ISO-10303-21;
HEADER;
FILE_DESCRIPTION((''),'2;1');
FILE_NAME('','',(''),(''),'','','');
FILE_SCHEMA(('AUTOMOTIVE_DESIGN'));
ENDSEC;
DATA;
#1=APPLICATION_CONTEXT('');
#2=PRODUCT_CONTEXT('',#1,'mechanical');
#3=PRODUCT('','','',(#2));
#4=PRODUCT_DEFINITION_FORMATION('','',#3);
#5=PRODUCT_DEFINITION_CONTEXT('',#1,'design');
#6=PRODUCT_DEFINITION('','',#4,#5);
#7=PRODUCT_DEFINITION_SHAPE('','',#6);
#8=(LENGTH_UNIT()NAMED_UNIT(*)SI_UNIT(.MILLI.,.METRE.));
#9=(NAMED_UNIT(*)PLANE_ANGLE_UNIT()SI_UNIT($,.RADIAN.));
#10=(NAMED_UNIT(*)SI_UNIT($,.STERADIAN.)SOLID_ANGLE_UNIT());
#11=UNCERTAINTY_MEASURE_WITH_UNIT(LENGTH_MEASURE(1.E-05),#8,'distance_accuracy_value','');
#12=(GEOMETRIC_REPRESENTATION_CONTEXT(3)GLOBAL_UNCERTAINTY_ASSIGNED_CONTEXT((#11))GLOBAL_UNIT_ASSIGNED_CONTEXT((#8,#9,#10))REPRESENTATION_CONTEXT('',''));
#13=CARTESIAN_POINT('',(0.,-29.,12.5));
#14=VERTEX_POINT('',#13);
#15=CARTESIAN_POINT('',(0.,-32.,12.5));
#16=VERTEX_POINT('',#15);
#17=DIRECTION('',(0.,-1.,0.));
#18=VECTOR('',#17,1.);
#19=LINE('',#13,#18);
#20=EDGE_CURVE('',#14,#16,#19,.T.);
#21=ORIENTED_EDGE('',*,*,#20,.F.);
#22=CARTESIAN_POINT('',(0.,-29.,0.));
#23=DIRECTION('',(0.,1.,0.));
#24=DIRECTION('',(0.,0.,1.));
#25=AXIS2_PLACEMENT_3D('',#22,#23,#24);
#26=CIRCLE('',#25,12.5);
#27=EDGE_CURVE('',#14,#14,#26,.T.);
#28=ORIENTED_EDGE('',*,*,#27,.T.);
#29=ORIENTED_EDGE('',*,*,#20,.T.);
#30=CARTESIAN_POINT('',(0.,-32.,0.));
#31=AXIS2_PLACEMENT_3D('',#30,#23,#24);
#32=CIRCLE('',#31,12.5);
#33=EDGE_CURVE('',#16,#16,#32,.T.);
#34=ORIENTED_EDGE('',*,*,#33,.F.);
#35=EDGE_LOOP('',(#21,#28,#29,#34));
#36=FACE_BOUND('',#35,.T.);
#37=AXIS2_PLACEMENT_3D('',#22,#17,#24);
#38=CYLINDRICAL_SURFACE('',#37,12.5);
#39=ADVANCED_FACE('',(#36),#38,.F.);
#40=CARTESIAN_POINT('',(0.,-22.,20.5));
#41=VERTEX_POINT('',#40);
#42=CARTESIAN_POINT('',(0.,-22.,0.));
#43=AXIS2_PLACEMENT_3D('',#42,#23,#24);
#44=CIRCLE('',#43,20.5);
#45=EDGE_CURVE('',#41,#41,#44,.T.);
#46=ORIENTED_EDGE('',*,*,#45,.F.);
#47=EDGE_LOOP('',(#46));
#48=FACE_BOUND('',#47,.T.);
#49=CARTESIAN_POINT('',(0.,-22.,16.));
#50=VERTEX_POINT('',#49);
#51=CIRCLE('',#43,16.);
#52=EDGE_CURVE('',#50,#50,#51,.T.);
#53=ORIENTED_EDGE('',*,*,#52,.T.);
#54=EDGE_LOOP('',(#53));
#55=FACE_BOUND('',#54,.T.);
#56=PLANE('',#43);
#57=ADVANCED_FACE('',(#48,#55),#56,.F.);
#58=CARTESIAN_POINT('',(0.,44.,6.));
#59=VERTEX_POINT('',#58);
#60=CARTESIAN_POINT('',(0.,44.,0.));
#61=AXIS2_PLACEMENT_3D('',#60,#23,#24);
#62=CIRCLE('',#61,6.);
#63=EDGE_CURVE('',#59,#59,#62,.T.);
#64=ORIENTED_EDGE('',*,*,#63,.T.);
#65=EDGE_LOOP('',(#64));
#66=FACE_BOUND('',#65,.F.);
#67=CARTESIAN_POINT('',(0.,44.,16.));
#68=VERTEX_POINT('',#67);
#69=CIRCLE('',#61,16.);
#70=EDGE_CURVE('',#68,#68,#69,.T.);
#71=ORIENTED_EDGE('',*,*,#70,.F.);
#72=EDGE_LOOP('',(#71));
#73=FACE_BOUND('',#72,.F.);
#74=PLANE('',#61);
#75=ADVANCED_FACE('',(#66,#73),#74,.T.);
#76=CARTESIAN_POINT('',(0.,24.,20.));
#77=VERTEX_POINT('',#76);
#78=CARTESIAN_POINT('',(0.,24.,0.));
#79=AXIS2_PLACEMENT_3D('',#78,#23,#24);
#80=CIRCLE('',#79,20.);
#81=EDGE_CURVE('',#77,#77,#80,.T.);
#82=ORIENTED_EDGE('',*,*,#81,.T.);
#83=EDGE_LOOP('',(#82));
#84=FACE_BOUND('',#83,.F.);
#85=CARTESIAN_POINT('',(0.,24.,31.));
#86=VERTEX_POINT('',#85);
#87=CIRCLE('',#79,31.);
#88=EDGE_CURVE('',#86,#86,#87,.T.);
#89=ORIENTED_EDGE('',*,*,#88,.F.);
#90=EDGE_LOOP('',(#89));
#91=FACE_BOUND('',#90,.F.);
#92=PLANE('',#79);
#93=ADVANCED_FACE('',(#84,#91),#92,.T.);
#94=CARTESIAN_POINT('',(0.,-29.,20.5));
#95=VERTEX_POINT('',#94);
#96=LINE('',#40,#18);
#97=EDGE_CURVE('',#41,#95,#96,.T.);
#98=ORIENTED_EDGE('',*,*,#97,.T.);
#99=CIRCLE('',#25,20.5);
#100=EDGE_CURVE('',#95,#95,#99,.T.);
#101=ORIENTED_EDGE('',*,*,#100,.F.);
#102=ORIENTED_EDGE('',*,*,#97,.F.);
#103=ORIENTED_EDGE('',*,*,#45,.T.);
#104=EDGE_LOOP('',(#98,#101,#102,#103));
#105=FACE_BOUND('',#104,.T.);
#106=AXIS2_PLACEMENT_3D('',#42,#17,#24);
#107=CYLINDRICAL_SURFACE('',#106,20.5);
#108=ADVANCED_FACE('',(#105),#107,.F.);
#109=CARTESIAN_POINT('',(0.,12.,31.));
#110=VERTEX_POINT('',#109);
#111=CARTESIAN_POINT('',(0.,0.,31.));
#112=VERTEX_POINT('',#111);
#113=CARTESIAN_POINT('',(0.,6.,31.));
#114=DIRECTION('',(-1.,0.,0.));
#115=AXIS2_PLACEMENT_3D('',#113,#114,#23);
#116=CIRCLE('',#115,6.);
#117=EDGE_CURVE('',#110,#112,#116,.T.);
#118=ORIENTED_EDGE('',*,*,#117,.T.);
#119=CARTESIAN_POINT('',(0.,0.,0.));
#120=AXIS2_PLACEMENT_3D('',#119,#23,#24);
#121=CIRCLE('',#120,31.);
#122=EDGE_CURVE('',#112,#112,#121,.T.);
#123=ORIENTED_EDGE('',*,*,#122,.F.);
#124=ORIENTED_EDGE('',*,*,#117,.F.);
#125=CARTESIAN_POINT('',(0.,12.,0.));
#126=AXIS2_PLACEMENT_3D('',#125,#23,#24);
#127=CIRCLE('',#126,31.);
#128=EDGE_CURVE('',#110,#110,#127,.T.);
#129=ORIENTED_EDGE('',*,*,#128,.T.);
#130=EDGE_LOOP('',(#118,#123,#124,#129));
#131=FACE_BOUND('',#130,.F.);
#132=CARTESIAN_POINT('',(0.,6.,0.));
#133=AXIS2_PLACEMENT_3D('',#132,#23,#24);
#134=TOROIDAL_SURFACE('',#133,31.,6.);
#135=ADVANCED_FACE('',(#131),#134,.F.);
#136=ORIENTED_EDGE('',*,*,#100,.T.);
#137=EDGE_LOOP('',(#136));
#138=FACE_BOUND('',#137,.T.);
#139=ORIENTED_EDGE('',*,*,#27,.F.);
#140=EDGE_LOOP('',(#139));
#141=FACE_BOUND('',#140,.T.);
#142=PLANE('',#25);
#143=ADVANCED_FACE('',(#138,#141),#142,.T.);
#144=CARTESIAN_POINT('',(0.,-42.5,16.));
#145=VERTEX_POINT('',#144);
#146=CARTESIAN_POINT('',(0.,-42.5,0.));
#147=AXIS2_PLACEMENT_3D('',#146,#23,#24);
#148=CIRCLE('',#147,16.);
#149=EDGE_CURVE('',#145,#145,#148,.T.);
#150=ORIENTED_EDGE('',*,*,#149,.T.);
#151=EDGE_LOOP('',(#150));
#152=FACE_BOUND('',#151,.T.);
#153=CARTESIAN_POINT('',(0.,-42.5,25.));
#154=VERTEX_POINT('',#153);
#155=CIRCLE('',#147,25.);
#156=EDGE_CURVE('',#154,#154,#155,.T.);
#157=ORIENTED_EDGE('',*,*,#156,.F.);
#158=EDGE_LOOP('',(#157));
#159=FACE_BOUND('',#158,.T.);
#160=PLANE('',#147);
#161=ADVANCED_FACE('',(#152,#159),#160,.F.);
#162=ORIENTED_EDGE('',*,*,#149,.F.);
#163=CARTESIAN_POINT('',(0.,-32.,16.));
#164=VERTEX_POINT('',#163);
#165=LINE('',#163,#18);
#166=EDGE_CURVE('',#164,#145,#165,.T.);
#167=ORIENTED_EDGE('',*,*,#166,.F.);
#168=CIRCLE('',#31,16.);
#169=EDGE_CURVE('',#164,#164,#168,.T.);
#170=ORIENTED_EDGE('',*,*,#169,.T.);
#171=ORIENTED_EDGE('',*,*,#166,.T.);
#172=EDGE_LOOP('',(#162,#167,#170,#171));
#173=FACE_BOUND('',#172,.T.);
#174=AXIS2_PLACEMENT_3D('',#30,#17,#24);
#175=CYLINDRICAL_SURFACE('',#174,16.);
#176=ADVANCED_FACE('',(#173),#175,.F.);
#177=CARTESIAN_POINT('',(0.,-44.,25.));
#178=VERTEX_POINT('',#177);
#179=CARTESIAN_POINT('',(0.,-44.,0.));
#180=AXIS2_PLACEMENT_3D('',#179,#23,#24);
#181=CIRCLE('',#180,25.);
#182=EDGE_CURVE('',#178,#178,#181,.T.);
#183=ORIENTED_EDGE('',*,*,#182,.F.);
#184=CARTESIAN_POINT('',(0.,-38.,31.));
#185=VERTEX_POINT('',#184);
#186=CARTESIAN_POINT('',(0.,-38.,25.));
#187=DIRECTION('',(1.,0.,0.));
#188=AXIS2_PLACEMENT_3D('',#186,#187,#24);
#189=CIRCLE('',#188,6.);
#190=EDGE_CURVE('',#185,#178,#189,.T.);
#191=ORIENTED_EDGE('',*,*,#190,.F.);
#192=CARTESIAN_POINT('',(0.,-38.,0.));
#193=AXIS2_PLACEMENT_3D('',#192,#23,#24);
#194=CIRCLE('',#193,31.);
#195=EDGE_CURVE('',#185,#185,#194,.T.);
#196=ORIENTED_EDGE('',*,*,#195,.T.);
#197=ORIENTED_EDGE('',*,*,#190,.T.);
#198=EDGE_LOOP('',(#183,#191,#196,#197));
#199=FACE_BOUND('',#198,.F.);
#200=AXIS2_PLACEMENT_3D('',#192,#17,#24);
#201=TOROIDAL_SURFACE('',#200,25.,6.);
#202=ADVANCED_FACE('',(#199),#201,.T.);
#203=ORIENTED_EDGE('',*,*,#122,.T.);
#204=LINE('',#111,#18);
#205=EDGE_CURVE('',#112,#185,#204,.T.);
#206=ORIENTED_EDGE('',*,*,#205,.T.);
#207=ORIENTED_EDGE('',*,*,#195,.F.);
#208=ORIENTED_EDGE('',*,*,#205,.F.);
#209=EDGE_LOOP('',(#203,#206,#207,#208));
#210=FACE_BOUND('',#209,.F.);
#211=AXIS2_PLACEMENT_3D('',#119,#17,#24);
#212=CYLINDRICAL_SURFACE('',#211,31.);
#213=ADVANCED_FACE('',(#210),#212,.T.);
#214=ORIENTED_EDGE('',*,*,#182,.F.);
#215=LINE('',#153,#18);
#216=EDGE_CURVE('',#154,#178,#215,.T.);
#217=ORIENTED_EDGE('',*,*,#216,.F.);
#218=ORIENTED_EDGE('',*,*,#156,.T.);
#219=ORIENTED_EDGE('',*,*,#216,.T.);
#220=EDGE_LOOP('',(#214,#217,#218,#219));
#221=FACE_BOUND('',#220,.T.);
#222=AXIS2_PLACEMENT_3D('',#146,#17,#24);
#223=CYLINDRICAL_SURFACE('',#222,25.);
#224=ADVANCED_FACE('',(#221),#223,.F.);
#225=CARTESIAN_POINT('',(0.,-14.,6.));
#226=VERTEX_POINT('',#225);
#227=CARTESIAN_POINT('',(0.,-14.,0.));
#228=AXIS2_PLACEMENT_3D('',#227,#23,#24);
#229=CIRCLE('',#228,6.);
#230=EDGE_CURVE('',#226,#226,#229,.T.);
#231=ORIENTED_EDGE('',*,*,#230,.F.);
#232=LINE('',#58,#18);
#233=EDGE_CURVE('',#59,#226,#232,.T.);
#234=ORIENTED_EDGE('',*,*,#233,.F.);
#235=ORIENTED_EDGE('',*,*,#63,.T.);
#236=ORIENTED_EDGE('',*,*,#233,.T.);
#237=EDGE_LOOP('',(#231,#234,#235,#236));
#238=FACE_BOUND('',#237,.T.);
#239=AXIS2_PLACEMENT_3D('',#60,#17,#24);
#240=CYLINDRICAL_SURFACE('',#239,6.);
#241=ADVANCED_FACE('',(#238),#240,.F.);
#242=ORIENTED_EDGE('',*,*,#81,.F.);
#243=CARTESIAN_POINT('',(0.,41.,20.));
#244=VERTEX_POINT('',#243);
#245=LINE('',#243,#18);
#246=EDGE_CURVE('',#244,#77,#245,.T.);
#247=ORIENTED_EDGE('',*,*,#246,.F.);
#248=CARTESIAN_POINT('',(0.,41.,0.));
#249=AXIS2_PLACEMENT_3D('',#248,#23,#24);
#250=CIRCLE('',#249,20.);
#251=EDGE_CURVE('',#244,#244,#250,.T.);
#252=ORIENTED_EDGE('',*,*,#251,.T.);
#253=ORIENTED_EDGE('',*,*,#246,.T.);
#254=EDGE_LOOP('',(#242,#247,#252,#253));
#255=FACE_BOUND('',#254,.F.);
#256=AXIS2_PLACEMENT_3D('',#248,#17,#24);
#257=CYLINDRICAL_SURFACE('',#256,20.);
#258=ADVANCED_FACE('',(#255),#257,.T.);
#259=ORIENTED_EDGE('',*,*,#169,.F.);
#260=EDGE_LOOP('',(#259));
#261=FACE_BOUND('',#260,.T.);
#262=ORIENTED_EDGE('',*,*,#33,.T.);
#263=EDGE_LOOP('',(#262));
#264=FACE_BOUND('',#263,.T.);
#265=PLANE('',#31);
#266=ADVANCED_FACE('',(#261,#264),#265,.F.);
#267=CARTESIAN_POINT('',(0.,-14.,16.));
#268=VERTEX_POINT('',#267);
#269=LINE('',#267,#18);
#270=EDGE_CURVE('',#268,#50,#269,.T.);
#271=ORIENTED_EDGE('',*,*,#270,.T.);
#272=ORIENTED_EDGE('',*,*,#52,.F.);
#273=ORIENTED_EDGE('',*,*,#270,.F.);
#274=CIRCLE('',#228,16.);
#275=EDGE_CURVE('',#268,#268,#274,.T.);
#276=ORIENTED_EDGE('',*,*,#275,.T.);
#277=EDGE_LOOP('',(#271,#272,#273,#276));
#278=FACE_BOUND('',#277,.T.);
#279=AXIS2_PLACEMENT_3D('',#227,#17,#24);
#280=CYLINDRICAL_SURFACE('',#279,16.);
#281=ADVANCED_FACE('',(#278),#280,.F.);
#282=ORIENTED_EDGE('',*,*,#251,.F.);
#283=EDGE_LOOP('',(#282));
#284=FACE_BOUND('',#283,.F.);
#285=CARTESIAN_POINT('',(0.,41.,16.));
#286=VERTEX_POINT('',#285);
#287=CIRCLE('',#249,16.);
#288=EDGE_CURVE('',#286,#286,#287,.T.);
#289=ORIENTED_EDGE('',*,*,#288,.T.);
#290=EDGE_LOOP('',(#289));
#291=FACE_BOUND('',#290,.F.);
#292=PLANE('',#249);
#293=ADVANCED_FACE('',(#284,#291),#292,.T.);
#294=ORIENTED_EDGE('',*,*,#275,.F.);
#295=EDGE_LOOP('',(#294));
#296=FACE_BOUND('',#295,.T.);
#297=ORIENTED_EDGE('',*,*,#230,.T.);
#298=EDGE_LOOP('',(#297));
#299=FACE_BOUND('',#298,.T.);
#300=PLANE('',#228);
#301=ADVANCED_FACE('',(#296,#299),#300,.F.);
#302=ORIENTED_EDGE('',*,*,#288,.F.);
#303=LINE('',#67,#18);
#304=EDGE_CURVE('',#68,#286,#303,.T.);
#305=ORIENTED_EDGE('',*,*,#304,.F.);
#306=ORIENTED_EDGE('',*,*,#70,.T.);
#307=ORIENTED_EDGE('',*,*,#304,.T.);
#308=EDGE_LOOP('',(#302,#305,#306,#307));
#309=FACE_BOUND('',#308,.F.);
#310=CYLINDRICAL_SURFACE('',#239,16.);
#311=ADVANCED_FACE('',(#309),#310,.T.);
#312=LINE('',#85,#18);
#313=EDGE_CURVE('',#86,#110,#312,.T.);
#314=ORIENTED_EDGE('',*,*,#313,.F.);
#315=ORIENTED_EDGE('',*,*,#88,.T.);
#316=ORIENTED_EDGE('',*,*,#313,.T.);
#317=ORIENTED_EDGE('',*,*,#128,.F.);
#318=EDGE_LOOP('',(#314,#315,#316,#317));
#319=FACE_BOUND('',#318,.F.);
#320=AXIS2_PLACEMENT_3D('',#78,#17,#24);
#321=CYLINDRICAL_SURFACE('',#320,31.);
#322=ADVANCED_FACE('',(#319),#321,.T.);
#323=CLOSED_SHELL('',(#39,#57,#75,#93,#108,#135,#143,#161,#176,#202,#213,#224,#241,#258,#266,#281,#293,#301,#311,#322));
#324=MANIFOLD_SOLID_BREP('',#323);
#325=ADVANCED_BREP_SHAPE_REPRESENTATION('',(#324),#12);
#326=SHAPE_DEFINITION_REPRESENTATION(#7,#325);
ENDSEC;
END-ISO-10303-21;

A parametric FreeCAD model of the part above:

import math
import FreeCAD as App
import Part
import Sketcher
from FreeCAD import Vector
Q = App.Units.Quantity


def edges_at(feature, points):
    """Names of the edges that pass closest to the given points."""
    edges = feature.Shape.Edges
    near = lambda p: min(range(len(edges)), key=lambda i: edges[i].distToShape(Part.Vertex(*p))[0])
    return sorted({f"Edge{near(p) + 1}" for p in points})


def add_polygon(sketch, points):
    """Adds a closed chain of lines whose ends are joined by coincident constraints."""
    first, n = sketch.GeometryCount, len(points)
    for a, b in zip(points, points[1:] + points[:1]):
        sketch.addGeometry(Part.LineSegment(App.Vector(*a, 0), App.Vector(*b, 0)), False)
    for i in range(n):
        sketch.addConstraint(Sketcher.Constraint("Coincident", first + i, 2, first + (i + 1) % n, 1))

doc = App.newDocument("Part")
body = doc.addObject("PartDesign::Body", "Body")

sketch1 = body.newObject("Sketcher::SketchObject", "Sketch")
sketch1.AttachmentSupport = (doc.getObject("YZ_Plane"), [""])
sketch1.MapMode = "FlatFace"
sketch1.addGeometry([
    Part.LineSegment(Vector(0, 31, 0), Vector(-44, 31, 0)),
    Part.LineSegment(Vector(-44, 31, 0), Vector(-44, 0, 0)),
    Part.LineSegment(Vector(-44, 0, 0), Vector(24, 0, 0)),
    Part.LineSegment(Vector(24, 0, 0), Vector(24, 31, 0)),
    Part.LineSegment(Vector(24, 31, 0), Vector(12, 31, 0)),
    Part.ArcOfCircle(Part.Circle(Vector(6, 31, 0), Vector(0, 0, 1), 6), math.radians(180), math.radians(360)),
], False)
sketch1.addConstraint([
    Sketcher.Constraint("Coincident", 0, 2, 1, 1),
    Sketcher.Constraint("Coincident", 1, 2, 2, 1),
    Sketcher.Constraint("Coincident", 2, 2, 3, 1),
    Sketcher.Constraint("Coincident", 3, 2, 4, 1),
    Sketcher.Constraint("Coincident", 4, 2, 5, 2),
    Sketcher.Constraint("Coincident", 5, 1, 0, 1),
    Sketcher.Constraint("Horizontal", 0),
    Sketcher.Constraint("Vertical", 1),
    Sketcher.Constraint("Horizontal", 2),
    Sketcher.Constraint("Vertical", 3),
    Sketcher.Constraint("Horizontal", 4),
    Sketcher.Constraint("PointOnObject", 1, 2, -1),
    Sketcher.Constraint("PointOnObject", 5, 1, -2),
    Sketcher.Constraint("Horizontal", 5, 3, 0, 2),
    Sketcher.Constraint("Horizontal", 0, 2, 3, 2),
    Sketcher.Constraint("Radius", 5, Q("6 mm")),
    Sketcher.Constraint("DistanceX", 0, 2, 0, 1, Q("44 mm")),
    Sketcher.Constraint("DistanceX", 2, 1, 2, 2, Q("68 mm")),
    Sketcher.Constraint("DistanceY", 1, 2, 1, 1, Q("31 mm")),
])
revolution = body.newObject("PartDesign::Revolution", "Revolution")
revolution.Profile = sketch1
revolution.ReferenceAxis = (sketch1, ["H_Axis"])
revolution.Angle = 360
doc.recompute()

fillet = body.newObject("PartDesign::Fillet", "Fillet")
fillet.Base = (revolution, edges_at(revolution, [(0, -44, -31)]))
fillet.Radius = 6

sketch2 = body.newObject("Sketcher::SketchObject", "Sketch001")
sketch2.AttachmentSupport = (doc.getObject("YZ_Plane"), [""])
sketch2.MapMode = "FlatFace"
add_polygon(sketch2, [(41, 20), (24, 20), (24, 0), (44, 0), (44, 16), (41, 16)])
sketch2.addConstraint([
    Sketcher.Constraint("Horizontal", 0),
    Sketcher.Constraint("Vertical", 1),
    Sketcher.Constraint("Horizontal", 2),
    Sketcher.Constraint("Vertical", 3),
    Sketcher.Constraint("Horizontal", 4),
    Sketcher.Constraint("Vertical", 5),
    Sketcher.Constraint("PointOnObject", 1, 2, -1),
    Sketcher.Constraint("Equal", 2, 1),
    Sketcher.Constraint("DistanceX", 0, 2, 0, 1, Q("17 mm")),
    Sketcher.Constraint("DistanceX", 2, 1, 2, 2, Q("20 mm")),
    Sketcher.Constraint("DistanceY", 3, 1, 3, 2, Q("16 mm")),
    Sketcher.Constraint("DistanceX", -1, 1, 0, 2, Q("24 mm")),
])
revolution2 = body.newObject("PartDesign::Revolution", "Revolution001")
revolution2.Profile = sketch2
revolution2.ReferenceAxis = (sketch2, ["H_Axis"])
revolution2.Angle = 360

sketch3 = body.newObject("Sketcher::SketchObject", "Sketch002")
sketch3.AttachmentSupport = (doc.getObject("YZ_Plane"), [""])
sketch3.MapMode = "FlatFace"
add_polygon(sketch3, [(-42.5, 25), (-44, 25), (-44, 0), (44, 0), (44, 6), (-14, 6), (-14, 16), (-22, 16), (-22, 20.5), (-29, 20.5), (-29, 12.5), (-32, 12.5), (-32, 16), (-42.5, 16)])
sketch3.addConstraint([
    Sketcher.Constraint("Horizontal", 0),
    Sketcher.Constraint("Vertical", 1),
    Sketcher.Constraint("Horizontal", 2),
    Sketcher.Constraint("Vertical", 3),
    Sketcher.Constraint("Horizontal", 4),
    Sketcher.Constraint("Vertical", 5),
    Sketcher.Constraint("Horizontal", 6),
    Sketcher.Constraint("Vertical", 7),
    Sketcher.Constraint("Horizontal", 8),
    Sketcher.Constraint("Vertical", 9),
    Sketcher.Constraint("Horizontal", 10),
    Sketcher.Constraint("Vertical", 11),
    Sketcher.Constraint("Horizontal", 12),
    Sketcher.Constraint("Vertical", 13),
    Sketcher.Constraint("Symmetric", 1, 2, 2, 2, -1, 1),
    Sketcher.Constraint("Horizontal", 6, 2, 11, 2),
    Sketcher.Constraint("Equal", 6, 9),
    Sketcher.Constraint("DistanceX", 2, 1, 2, 2, Q("88 mm")),
    Sketcher.Constraint("DistanceX", 4, 2, 4, 1, Q("58 mm")),
    Sketcher.Constraint("DistanceX", 6, 2, 6, 1, Q("8 mm")),
    Sketcher.Constraint("DistanceX", 8, 2, 8, 1, Q("7 mm")),
    Sketcher.Constraint("DistanceX", 10, 2, 10, 1, Q("3 mm")),
    Sketcher.Constraint("DistanceY", 1, 2, 1, 1, Q("25 mm")),
    Sketcher.Constraint("DistanceY", 3, 1, 3, 2, Q("6 mm")),
    Sketcher.Constraint("DistanceY", 5, 1, 5, 2, Q("10 mm")),
    Sketcher.Constraint("DistanceX", 0, 2, 0, 1, Q("1.5 mm")),
    Sketcher.Constraint("DistanceY", 7, 1, 7, 2, Q("4.5 mm")),
])
groove = body.newObject("PartDesign::Groove", "Groove")
groove.Profile = sketch3
groove.ReferenceAxis = (sketch3, ["H_Axis"])
groove.Angle = 360

doc.recompute()
